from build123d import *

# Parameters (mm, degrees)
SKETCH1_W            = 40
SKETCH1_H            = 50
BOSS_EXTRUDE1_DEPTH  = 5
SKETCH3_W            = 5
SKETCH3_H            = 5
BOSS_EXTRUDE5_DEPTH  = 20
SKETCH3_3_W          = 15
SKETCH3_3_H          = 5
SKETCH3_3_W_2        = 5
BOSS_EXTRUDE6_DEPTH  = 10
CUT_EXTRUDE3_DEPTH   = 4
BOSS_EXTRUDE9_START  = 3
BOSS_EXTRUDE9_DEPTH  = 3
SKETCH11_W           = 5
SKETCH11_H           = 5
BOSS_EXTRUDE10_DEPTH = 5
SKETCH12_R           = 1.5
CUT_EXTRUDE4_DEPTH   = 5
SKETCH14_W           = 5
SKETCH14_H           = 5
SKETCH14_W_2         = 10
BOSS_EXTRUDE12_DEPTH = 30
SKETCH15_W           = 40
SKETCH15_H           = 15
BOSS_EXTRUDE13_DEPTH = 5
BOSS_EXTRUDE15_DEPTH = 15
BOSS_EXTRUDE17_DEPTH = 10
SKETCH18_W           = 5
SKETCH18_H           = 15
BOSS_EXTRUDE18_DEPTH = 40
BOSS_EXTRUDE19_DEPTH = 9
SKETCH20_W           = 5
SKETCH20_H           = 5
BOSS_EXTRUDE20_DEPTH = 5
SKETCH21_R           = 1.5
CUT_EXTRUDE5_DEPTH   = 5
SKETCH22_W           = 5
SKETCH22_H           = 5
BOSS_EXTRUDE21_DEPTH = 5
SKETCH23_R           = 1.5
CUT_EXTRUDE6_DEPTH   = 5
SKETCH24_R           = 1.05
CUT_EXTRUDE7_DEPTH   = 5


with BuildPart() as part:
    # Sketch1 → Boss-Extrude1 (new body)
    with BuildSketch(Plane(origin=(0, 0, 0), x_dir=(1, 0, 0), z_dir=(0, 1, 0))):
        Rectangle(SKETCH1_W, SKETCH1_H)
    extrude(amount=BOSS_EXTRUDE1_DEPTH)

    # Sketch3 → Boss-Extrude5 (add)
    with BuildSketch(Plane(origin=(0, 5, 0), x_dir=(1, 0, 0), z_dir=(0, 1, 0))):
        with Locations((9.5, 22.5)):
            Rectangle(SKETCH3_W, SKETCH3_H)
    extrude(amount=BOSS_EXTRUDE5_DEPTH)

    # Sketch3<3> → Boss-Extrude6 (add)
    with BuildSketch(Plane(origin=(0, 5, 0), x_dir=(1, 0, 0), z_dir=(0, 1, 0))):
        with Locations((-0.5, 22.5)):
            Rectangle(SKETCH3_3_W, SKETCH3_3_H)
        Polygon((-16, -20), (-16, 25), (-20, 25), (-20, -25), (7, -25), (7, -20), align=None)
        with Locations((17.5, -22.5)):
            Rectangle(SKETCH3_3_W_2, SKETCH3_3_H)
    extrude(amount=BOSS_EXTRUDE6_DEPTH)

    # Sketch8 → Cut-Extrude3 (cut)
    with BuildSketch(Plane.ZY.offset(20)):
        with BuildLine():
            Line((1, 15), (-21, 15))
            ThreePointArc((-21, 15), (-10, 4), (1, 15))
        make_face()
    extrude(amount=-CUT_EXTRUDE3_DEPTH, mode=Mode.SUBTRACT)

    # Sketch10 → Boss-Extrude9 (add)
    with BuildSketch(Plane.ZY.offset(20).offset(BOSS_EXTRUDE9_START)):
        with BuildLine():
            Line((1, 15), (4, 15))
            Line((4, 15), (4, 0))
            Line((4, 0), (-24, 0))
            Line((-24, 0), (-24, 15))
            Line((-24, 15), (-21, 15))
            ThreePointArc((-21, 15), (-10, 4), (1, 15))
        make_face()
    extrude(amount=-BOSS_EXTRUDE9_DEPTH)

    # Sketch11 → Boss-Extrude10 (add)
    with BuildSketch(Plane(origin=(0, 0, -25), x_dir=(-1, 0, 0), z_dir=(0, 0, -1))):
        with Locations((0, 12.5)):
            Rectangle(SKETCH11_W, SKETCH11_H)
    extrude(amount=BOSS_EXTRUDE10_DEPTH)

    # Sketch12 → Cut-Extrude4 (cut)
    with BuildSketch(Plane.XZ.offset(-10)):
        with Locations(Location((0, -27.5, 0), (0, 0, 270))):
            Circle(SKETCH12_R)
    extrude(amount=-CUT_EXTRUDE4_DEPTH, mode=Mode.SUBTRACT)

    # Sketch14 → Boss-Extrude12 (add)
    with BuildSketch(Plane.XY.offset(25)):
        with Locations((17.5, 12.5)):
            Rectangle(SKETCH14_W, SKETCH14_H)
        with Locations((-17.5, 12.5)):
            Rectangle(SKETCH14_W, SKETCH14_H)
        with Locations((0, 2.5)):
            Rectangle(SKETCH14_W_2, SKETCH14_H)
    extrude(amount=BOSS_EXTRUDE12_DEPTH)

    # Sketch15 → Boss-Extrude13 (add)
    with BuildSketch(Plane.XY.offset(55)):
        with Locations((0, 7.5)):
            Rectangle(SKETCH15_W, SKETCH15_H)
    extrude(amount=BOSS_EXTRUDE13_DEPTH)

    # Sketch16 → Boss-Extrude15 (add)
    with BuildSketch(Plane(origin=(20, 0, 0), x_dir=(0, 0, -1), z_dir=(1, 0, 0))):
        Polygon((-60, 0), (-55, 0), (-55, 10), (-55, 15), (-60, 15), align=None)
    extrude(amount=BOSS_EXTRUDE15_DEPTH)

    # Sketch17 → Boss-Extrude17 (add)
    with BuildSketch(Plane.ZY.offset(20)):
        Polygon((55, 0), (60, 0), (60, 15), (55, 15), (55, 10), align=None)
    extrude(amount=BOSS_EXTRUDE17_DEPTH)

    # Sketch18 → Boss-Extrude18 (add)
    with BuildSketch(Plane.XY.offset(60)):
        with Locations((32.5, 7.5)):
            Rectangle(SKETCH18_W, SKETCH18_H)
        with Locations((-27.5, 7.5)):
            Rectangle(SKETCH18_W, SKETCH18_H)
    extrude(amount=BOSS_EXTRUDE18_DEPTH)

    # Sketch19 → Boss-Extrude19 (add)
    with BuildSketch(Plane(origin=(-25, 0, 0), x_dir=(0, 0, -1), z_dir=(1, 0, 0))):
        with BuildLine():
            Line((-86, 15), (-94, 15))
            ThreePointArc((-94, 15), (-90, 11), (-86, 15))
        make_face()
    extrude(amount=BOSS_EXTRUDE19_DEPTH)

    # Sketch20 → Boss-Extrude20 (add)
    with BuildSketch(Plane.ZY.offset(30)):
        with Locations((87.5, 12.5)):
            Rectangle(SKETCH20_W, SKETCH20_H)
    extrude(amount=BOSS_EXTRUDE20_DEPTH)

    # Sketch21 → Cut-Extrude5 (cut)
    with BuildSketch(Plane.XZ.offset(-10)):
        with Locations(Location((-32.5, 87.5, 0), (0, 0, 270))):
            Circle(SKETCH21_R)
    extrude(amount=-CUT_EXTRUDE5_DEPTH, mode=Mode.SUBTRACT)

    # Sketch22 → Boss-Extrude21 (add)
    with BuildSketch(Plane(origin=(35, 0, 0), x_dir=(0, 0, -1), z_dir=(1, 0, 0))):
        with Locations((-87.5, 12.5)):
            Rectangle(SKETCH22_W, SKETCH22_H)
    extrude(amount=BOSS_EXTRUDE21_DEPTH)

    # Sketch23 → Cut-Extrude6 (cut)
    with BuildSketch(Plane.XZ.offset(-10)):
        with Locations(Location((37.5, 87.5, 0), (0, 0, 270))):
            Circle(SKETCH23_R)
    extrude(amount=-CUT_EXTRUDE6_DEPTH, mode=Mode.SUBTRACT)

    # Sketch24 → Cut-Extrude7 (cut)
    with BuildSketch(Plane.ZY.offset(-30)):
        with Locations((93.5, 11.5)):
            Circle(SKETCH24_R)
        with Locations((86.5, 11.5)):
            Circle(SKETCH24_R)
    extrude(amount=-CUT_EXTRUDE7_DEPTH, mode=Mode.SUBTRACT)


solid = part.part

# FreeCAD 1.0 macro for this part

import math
import FreeCAD as App
import Part
import Sketcher

doc = App.newDocument("Part")
body = doc.addObject("PartDesign::Body", "Body")

sketch1 = doc.addObject("Sketcher::SketchObject", "Sketch")
body.addObject(sketch1)
sketch1.AttachmentSupport = (doc.XZ_Plane, [""])
sketch1.MapMode = "FlatFace"
sketch1.addGeometry(Part.LineSegment(App.Vector(-20, -25, 0), App.Vector(-20, 25, 0)), False)
sketch1.addGeometry(Part.LineSegment(App.Vector(-20, 25, 0), App.Vector(20, 25, 0)), False)
sketch1.addGeometry(Part.LineSegment(App.Vector(20, 25, 0), App.Vector(20, -25, 0)), False)
sketch1.addGeometry(Part.LineSegment(App.Vector(20, -25, 0), App.Vector(-20, -25, 0)), False)
sketch1.addConstraint(Sketcher.Constraint("Coincident", 0, 2, 1, 1))
sketch1.addConstraint(Sketcher.Constraint("Coincident", 1, 2, 2, 1))
sketch1.addConstraint(Sketcher.Constraint("Coincident", 2, 2, 3, 1))
sketch1.addConstraint(Sketcher.Constraint("Coincident", 3, 2, 0, 1))
sketch1.addConstraint(Sketcher.Constraint("Vertical", 0))
sketch1.addConstraint(Sketcher.Constraint("Horizontal", 1))
sketch1.addConstraint(Sketcher.Constraint("Vertical", 2))
sketch1.addConstraint(Sketcher.Constraint("Horizontal", 3))
sketch1.addConstraint(Sketcher.Constraint("Symmetric", 0, 2, 2, 2, -1, 1))
sketch1.addConstraint(Sketcher.Constraint("DistanceX", 1, 1, 1, 2, 40.0))
sketch1.addConstraint(Sketcher.Constraint("DistanceY", 0, 1, 0, 2, 50.0))
pad1 = doc.addObject("PartDesign::Pad", "Pad")
body.addObject(pad1)
pad1.Profile = sketch1
pad1.Length = 5
pad1.Reversed = True

sketch2 = doc.addObject("Sketcher::SketchObject", "Sketch001")
body.addObject(sketch2)
sketch2.AttachmentSupport = (doc.XZ_Plane, [""])
sketch2.MapMode = "FlatFace"
sketch2.AttachmentOffset = App.Placement(App.Vector(0, 0, -5), App.Rotation())
sketch2.addGeometry(Part.LineSegment(App.Vector(7, -25, 0), App.Vector(7, -20, 0)), False)
sketch2.addGeometry(Part.LineSegment(App.Vector(7, -20, 0), App.Vector(12, -20, 0)), False)
sketch2.addGeometry(Part.LineSegment(App.Vector(12, -20, 0), App.Vector(12, -25, 0)), False)
sketch2.addGeometry(Part.LineSegment(App.Vector(12, -25, 0), App.Vector(7, -25, 0)), False)
sketch2.addConstraint(Sketcher.Constraint("Coincident", 0, 2, 1, 1))
sketch2.addConstraint(Sketcher.Constraint("Coincident", 1, 2, 2, 1))
sketch2.addConstraint(Sketcher.Constraint("Coincident", 2, 2, 3, 1))
sketch2.addConstraint(Sketcher.Constraint("Coincident", 3, 2, 0, 1))
sketch2.addConstraint(Sketcher.Constraint("Vertical", 0))
sketch2.addConstraint(Sketcher.Constraint("Horizontal", 1))
sketch2.addConstraint(Sketcher.Constraint("Vertical", 2))
sketch2.addConstraint(Sketcher.Constraint("Horizontal", 3))
sketch2.addConstraint(Sketcher.Constraint("Equal", 3, 0))
sketch2.addConstraint(Sketcher.Constraint("DistanceX", 1, 1, 1, 2, 5.0))
sketch2.addConstraint(Sketcher.Constraint("DistanceX", -1, 1, 0, 2, 7.0))
sketch2.addConstraint(Sketcher.Constraint("DistanceY", 0, 2, -1, 1, 20.0))
pad2 = doc.addObject("PartDesign::Pad", "Pad001")
body.addObject(pad2)
pad2.Profile = sketch2
pad2.Length = 20
pad2.Reversed = True

sketch3 = doc.addObject("Sketcher::SketchObject", "Sketch002")
body.addObject(sketch3)
sketch3.AttachmentSupport = (doc.XZ_Plane, [""])
sketch3.MapMode = "FlatFace"
sketch3.AttachmentOffset = App.Placement(App.Vector(0, 0, -5), App.Rotation())
sketch3.addGeometry(Part.LineSegment(App.Vector(-8, -25, 0), App.Vector(-8, -20, 0)), False)
sketch3.addGeometry(Part.LineSegment(App.Vector(-8, -20, 0), App.Vector(7, -20, 0)), False)
sketch3.addGeometry(Part.LineSegment(App.Vector(7, -20, 0), App.Vector(7, -25, 0)), False)
sketch3.addGeometry(Part.LineSegment(App.Vector(7, -25, 0), App.Vector(-8, -25, 0)), False)
sketch3.addGeometry(Part.LineSegment(App.Vector(-16, 20, 0), App.Vector(-16, -25, 0)), False)
sketch3.addGeometry(Part.LineSegment(App.Vector(-16, -25, 0), App.Vector(-20, -25, 0)), False)
sketch3.addGeometry(Part.LineSegment(App.Vector(-20, -25, 0), App.Vector(-20, 25, 0)), False)
sketch3.addGeometry(Part.LineSegment(App.Vector(-20, 25, 0), App.Vector(7, 25, 0)), False)
sketch3.addGeometry(Part.LineSegment(App.Vector(7, 25, 0), App.Vector(7, 20, 0)), False)
sketch3.addGeometry(Part.LineSegment(App.Vector(7, 20, 0), App.Vector(-16, 20, 0)), False)
sketch3.addGeometry(Part.LineSegment(App.Vector(15, 20, 0), App.Vector(15, 25, 0)), False)
sketch3.addGeometry(Part.LineSegment(App.Vector(15, 25, 0), App.Vector(20, 25, 0)), False)
sketch3.addGeometry(Part.LineSegment(App.Vector(20, 25, 0), App.Vector(20, 20, 0)), False)
sketch3.addGeometry(Part.LineSegment(App.Vector(20, 20, 0), App.Vector(15, 20, 0)), False)
sketch3.addConstraint(Sketcher.Constraint("Coincident", 0, 2, 1, 1))
sketch3.addConstraint(Sketcher.Constraint("Coincident", 1, 2, 2, 1))
sketch3.addConstraint(Sketcher.Constraint("Coincident", 2, 2, 3, 1))
sketch3.addConstraint(Sketcher.Constraint("Coincident", 3, 2, 0, 1))
sketch3.addConstraint(Sketcher.Constraint("Coincident", 4, 2, 5, 1))
sketch3.addConstraint(Sketcher.Constraint("Coincident", 5, 2, 6, 1))
sketch3.addConstraint(Sketcher.Constraint("Coincident", 6, 2, 7, 1))
sketch3.addConstraint(Sketcher.Constraint("Coincident", 7, 2, 8, 1))
sketch3.addConstraint(Sketcher.Constraint("Coincident", 8, 2, 9, 1))
sketch3.addConstraint(Sketcher.Constraint("Coincident", 9, 2, 4, 1))
sketch3.addConstraint(Sketcher.Constraint("Coincident", 10, 2, 11, 1))
sketch3.addConstraint(Sketcher.Constraint("Coincident", 11, 2, 12, 1))
sketch3.addConstraint(Sketcher.Constraint("Coincident", 12, 2, 13, 1))
sketch3.addConstraint(Sketcher.Constraint("Coincident", 13, 2, 10, 1))
sketch3.addConstraint(Sketcher.Constraint("Vertical", 0))
sketch3.addConstraint(Sketcher.Constraint("Horizontal", 1))
sketch3.addConstraint(Sketcher.Constraint("Vertical", 2))
sketch3.addConstraint(Sketcher.Constraint("Horizontal", 3))
sketch3.addConstraint(Sketcher.Constraint("Vertical", 4))
sketch3.addConstraint(Sketcher.Constraint("Horizontal", 5))
sketch3.addConstraint(Sketcher.Constraint("Vertical", 6))
sketch3.addConstraint(Sketcher.Constraint("Horizontal", 7))
sketch3.addConstraint(Sketcher.Constraint("Vertical", 8))
sketch3.addConstraint(Sketcher.Constraint("Horizontal", 9))
sketch3.addConstraint(Sketcher.Constraint("Vertical", 10))
sketch3.addConstraint(Sketcher.Constraint("Horizontal", 11))
sketch3.addConstraint(Sketcher.Constraint("Vertical", 12))
sketch3.addConstraint(Sketcher.Constraint("Horizontal", 13))
sketch3.addConstraint(Sketcher.Constraint("Symmetric", 5, 2, 11, 2, -1, 1))
sketch3.addConstraint(Sketcher.Constraint("Symmetric", 2, 2, 7, 2, -1))
sketch3.addConstraint(Sketcher.Constraint("Horizontal", 3, 2, 4, 2))
sketch3.addConstraint(Sketcher.Constraint("Horizontal", 9, 2, 12, 2))
sketch3.addConstraint(Sketcher.Constraint("Equal", 13, 0))
sketch3.addConstraint(Sketcher.Constraint("Equal", 2, 8))
sketch3.addConstraint(Sketcher.Constraint("DistanceX", 1, 1, 1, 2, 15.0))
sketch3.addConstraint(Sketcher.Constraint("DistanceX", 5, 2, 5, 1, 4.0))
sketch3.addConstraint(Sketcher.Constraint("DistanceX", 7, 1, 7, 2, 27.0))
sketch3.addConstraint(Sketcher.Constraint("DistanceX", 11, 1, 11, 2, 5.0))
sketch3.addConstraint(Sketcher.Constraint("DistanceY", 4, 2, 4, 1, 45.0))
sketch3.addConstraint(Sketcher.Constraint("DistanceX", 0, 2, -1, 1, 8.0))
pad3 = doc.addObject("PartDesign::Pad", "Pad002")
body.addObject(pad3)
pad3.Profile = sketch3
pad3.Length = 10
pad3.Reversed = True

sketch4 = doc.addObject("Sketcher::SketchObject", "Sketch003")
body.addObject(sketch4)
sketch4.AttachmentSupport = (doc.YZ_Plane, [""])
sketch4.MapMode = "FlatFace"
sketch4.AttachmentOffset = App.Placement(App.Vector(0, 0, -20), App.Rotation())
sketch4.addGeometry(Part.LineSegment(App.Vector(15, 1, 0), App.Vector(15, -21, 0)), False)
sketch4.addGeometry(Part.ArcOfCircle(Part.Circle(App.Vector(15, -10, 0), App.Vector(0, 0, 1), 11), math.radians(90), math.radians(270)), False)
sketch4.addConstraint(Sketcher.Constraint("Coincident", 0, 1, 1, 1))
sketch4.addConstraint(Sketcher.Constraint("Coincident", 1, 2, 0, 2))
sketch4.addConstraint(Sketcher.Constraint("Vertical", 0))
sketch4.addConstraint(Sketcher.Constraint("Vertical", 1, 3, 0, 1))
sketch4.addConstraint(Sketcher.Constraint("Radius", 1, 11.0))
sketch4.addConstraint(Sketcher.Constraint("DistanceX", -1, 1, 1, 3, 15.0))
sketch4.addConstraint(Sketcher.Constraint("DistanceY", 1, 3, -1, 1, 10.0))
pocket1 = doc.addObject("PartDesign::Pocket", "Pocket")
body.addObject(pocket1)
pocket1.Profile = sketch4
pocket1.Length = 4
pocket1.Reversed = True

sketch5 = doc.addObject("Sketcher::SketchObject", "Sketch004")
body.addObject(sketch5)
sketch5.AttachmentSupport = (doc.YZ_Plane, [""])
sketch5.MapMode = "FlatFace"
sketch5.AttachmentOffset = App.Placement(App.Vector(0, 0, -23), App.Rotation())
sketch5.addGeometry(Part.LineSegment(App.Vector(15, 4, 0), App.Vector(15, 1, 0)), False)
sketch5.addGeometry(Part.ArcOfCircle(Part.Circle(App.Vector(15, -10, 0), App.Vector(0, 0, 1), 11), math.radians(90), math.radians(270)), False)
sketch5.addGeometry(Part.LineSegment(App.Vector(15, -21, 0), App.Vector(15, -24, 0)), False)
sketch5.addGeometry(Part.LineSegment(App.Vector(15, -24, 0), App.Vector(0, -24, 0)), False)
sketch5.addGeometry(Part.LineSegment(App.Vector(0, -24, 0), App.Vector(0, 4, 0)), False)
sketch5.addGeometry(Part.LineSegment(App.Vector(0, 4, 0), App.Vector(15, 4, 0)), False)
sketch5.addConstraint(Sketcher.Constraint("Coincident", 0, 2, 1, 1))
sketch5.addConstraint(Sketcher.Constraint("Coincident", 1, 2, 2, 1))
sketch5.addConstraint(Sketcher.Constraint("Coincident", 2, 2, 3, 1))
sketch5.addConstraint(Sketcher.Constraint("Coincident", 3, 2, 4, 1))
sketch5.addConstraint(Sketcher.Constraint("Coincident", 4, 2, 5, 1))
sketch5.addConstraint(Sketcher.Constraint("Coincident", 5, 2, 0, 1))
sketch5.addConstraint(Sketcher.Constraint("Vertical", 0))
sketch5.addConstraint(Sketcher.Constraint("Vertical", 2))
sketch5.addConstraint(Sketcher.Constraint("Horizontal", 3))
sketch5.addConstraint(Sketcher.Constraint("Vertical", 4))
sketch5.addConstraint(Sketcher.Constraint("Horizontal", 5))
sketch5.addConstraint(Sketcher.Constraint("PointOnObject", 3, 2, -2))
sketch5.addConstraint(Sketcher.Constraint("Vertical", 1, 3, 0, 2))
sketch5.addConstraint(Sketcher.Constraint("Vertical", 0, 2, 1, 2))
sketch5.addConstraint(Sketcher.Constraint("Equal", 0, 2))
sketch5.addConstraint(Sketcher.Constraint("Radius", 1, 11.0))
sketch5.addConstraint(Sketcher.Constraint("DistanceX", 3, 2, 3, 1, 15.0))
sketch5.addConstraint(Sketcher.Constraint("DistanceY", 0, 2, 0, 1, 3.0))
sketch5.addConstraint(Sketcher.Constraint("DistanceY", 1, 3, -1, 1, 10.0))
pad4 = doc.addObject("PartDesign::Pad", "Pad003")
body.addObject(pad4)
pad4.Profile = sketch5
pad4.Length = 3

sketch6 = doc.addObject("Sketcher::SketchObject", "Sketch005")
body.addObject(sketch6)
sketch6.AttachmentSupport = (doc.XY_Plane, [""])
sketch6.MapMode = "FlatFace"
sketch6.AttachmentOffset = App.Placement(App.Vector(0, 0, -25), App.Rotation())
sketch6.addGeometry(Part.LineSegment(App.Vector(2.5, 15, 0), App.Vector(2.5, 10, 0)), False)
sketch6.addGeometry(Part.LineSegment(App.Vector(2.5, 10, 0), App.Vector(-2.5, 10, 0)), False)
sketch6.addGeometry(Part.LineSegment(App.Vector(-2.5, 10, 0), App.Vector(-2.5, 15, 0)), False)
sketch6.addGeometry(Part.LineSegment(App.Vector(-2.5, 15, 0), App.Vector(2.5, 15, 0)), False)
sketch6.addConstraint(Sketcher.Constraint("Coincident", 0, 2, 1, 1))
sketch6.addConstraint(Sketcher.Constraint("Coincident", 1, 2, 2, 1))
sketch6.addConstraint(Sketcher.Constraint("Coincident", 2, 2, 3, 1))
sketch6.addConstraint(Sketcher.Constraint("Coincident", 3, 2, 0, 1))
sketch6.addConstraint(Sketcher.Constraint("Vertical", 0))
sketch6.addConstraint(Sketcher.Constraint("Horizontal", 1))
sketch6.addConstraint(Sketcher.Constraint("Vertical", 2))
sketch6.addConstraint(Sketcher.Constraint("Horizontal", 3))
sketch6.addConstraint(Sketcher.Constraint("Equal", 3, 0))
sketch6.addConstraint(Sketcher.Constraint("DistanceX", 1, 2, 1, 1, 5.0))
sketch6.addConstraint(Sketcher.Constraint("DistanceY", -1, 1, 0, 2, 10.0))
sketch6.addConstraint(Sketcher.Constraint("DistanceX", -1, 1, 0, 2, 2.5))
pad5 = doc.addObject("PartDesign::Pad", "Pad004")
body.addObject(pad5)
pad5.Profile = sketch6
pad5.Length = 5
pad5.Reversed = True

sketch7 = doc.addObject("Sketcher::SketchObject", "Sketch006")
body.addObject(sketch7)
sketch7.AttachmentSupport = (doc.XZ_Plane, [""])
sketch7.MapMode = "FlatFace"
sketch7.AttachmentOffset = App.Placement(App.Vector(0, 0, -10), App.Rotation())
sketch7.addGeometry(Part.Circle(App.Vector(0, -27.5, 0), App.Vector(0, 0, 1), 1.5), False)
sketch7.addConstraint(Sketcher.Constraint("PointOnObject", 0, 3, -2))
sketch7.addConstraint(Sketcher.Constraint("Diameter", 0, 3.0))
sketch7.addConstraint(Sketcher.Constraint("DistanceY", 0, 3, -1, 1, 27.5))
pocket2 = doc.addObject("PartDesign::Pocket", "Pocket001")
body.addObject(pocket2)
pocket2.Profile = sketch7
pocket2.Length = 5

sketch8 = doc.addObject("Sketcher::SketchObject", "Sketch007")
body.addObject(sketch8)
sketch8.AttachmentSupport = (doc.XY_Plane, [""])
sketch8.MapMode = "FlatFace"
sketch8.AttachmentOffset = App.Placement(App.Vector(0, 0, 25), App.Rotation())
sketch8.addGeometry(Part.LineSegment(App.Vector(15, 15, 0), App.Vector(15, 10, 0)), False)
sketch8.addGeometry(Part.LineSegment(App.Vector(15, 10, 0), App.Vector(20, 10, 0)), False)
sketch8.addGeometry(Part.LineSegment(App.Vector(20, 10, 0), App.Vector(20, 15, 0)), False)
sketch8.addGeometry(Part.LineSegment(App.Vector(20, 15, 0), App.Vector(15, 15, 0)), False)
sketch8.addGeometry(Part.LineSegment(App.Vector(-20, 15, 0), App.Vector(-20, 10, 0)), False)
sketch8.addGeometry(Part.LineSegment(App.Vector(-20, 10, 0), App.Vector(-15, 10, 0)), False)
sketch8.addGeometry(Part.LineSegment(App.Vector(-15, 10, 0), App.Vector(-15, 15, 0)), False)
sketch8.addGeometry(Part.LineSegment(App.Vector(-15, 15, 0), App.Vector(-20, 15, 0)), False)
sketch8.addGeometry(Part.LineSegment(App.Vector(-5, 5, 0), App.Vector(-5, 0, 0)), False)
sketch8.addGeometry(Part.LineSegment(App.Vector(-5, 0, 0), App.Vector(5, 0, 0)), False)
sketch8.addGeometry(Part.LineSegment(App.Vector(5, 0, 0), App.Vector(5, 5, 0)), False)
sketch8.addGeometry(Part.LineSegment(App.Vector(5, 5, 0), App.Vector(-5, 5, 0)), False)
sketch8.addConstraint(Sketcher.Constraint("Coincident", 0, 2, 1, 1))
sketch8.addConstraint(Sketcher.Constraint("Coincident", 1, 2, 2, 1))
sketch8.addConstraint(Sketcher.Constraint("Coincident", 2, 2, 3, 1))
sketch8.addConstraint(Sketcher.Constraint("Coincident", 3, 2, 0, 1))
sketch8.addConstraint(Sketcher.Constraint("Coincident", 4, 2, 5, 1))
sketch8.addConstraint(Sketcher.Constraint("Coincident", 5, 2, 6, 1))
sketch8.addConstraint(Sketcher.Constraint("Coincident", 6, 2, 7, 1))
sketch8.addConstraint(Sketcher.Constraint("Coincident", 7, 2, 4, 1))
sketch8.addConstraint(Sketcher.Constraint("Coincident", 8, 2, 9, 1))
sketch8.addConstraint(Sketcher.Constraint("Coincident", 9, 2, 10, 1))
sketch8.addConstraint(Sketcher.Constraint("Coincident", 10, 2, 11, 1))
sketch8.addConstraint(Sketcher.Constraint("Coincident", 11, 2, 8, 1))
sketch8.addConstraint(Sketcher.Constraint("Vertical", 0))
sketch8.addConstraint(Sketcher.Constraint("Horizontal", 1))
sketch8.addConstraint(Sketcher.Constraint("Vertical", 2))
sketch8.addConstraint(Sketcher.Constraint("Horizontal", 3))
sketch8.addConstraint(Sketcher.Constraint("Vertical", 4))
sketch8.addConstraint(Sketcher.Constraint("Horizontal", 5))
sketch8.addConstraint(Sketcher.Constraint("Vertical", 6))
sketch8.addConstraint(Sketcher.Constraint("Horizontal", 7))
sketch8.addConstraint(Sketcher.Constraint("Vertical", 8))
sketch8.addConstraint(Sketcher.Constraint("Horizontal", 9))
sketch8.addConstraint(Sketcher.Constraint("Vertical", 10))
sketch8.addConstraint(Sketcher.Constraint("Horizontal", 11))
sketch8.addConstraint(Sketcher.Constraint("Symmetric", 8, 2, 9, 2, -1, 1))
sketch8.addConstraint(Sketcher.Constraint("Symmetric", 1, 2, 4, 2, -2))
sketch8.addConstraint(Sketcher.Constraint("Symmetric", 3, 2, 6, 2, -2))
sketch8.addConstraint(Sketcher.Constraint("Equal", 7, 0))
sketch8.addConstraint(Sketcher.Constraint("Equal", 6, 8))
sketch8.addConstraint(Sketcher.Constraint("DistanceX", 1, 1, 1, 2, 5.0))
sketch8.addConstraint(Sketcher.Constraint("DistanceX", 9, 1, 9, 2, 10.0))
sketch8.addConstraint(Sketcher.Constraint("DistanceX", -1, 1, 0, 2, 15.0))
sketch8.addConstraint(Sketcher.Constraint("DistanceY", -1, 1, 0, 2, 10.0))
pad6 = doc.addObject("PartDesign::Pad", "Pad005")
body.addObject(pad6)
pad6.Profile = sketch8
pad6.Length = 30

sketch9 = doc.addObject("Sketcher::SketchObject", "Sketch008")
body.addObject(sketch9)
sketch9.AttachmentSupport = (doc.XY_Plane, [""])
sketch9.MapMode = "FlatFace"
sketch9.AttachmentOffset = App.Placement(App.Vector(0, 0, 55), App.Rotation())
sketch9.addGeometry(Part.LineSegment(App.Vector(-20, 15, 0), App.Vector(-20, 0, 0)), False)
sketch9.addGeometry(Part.LineSegment(App.Vector(-20, 0, 0), App.Vector(20, 0, 0)), False)
sketch9.addGeometry(Part.LineSegment(App.Vector(20, 0, 0), App.Vector(20, 15, 0)), False)
sketch9.addGeometry(Part.LineSegment(App.Vector(20, 15, 0), App.Vector(-20, 15, 0)), False)
sketch9.addConstraint(Sketcher.Constraint("Coincident", 0, 2, 1, 1))
sketch9.addConstraint(Sketcher.Constraint("Coincident", 1, 2, 2, 1))
sketch9.addConstraint(Sketcher.Constraint("Coincident", 2, 2, 3, 1))
sketch9.addConstraint(Sketcher.Constraint("Coincident", 3, 2, 0, 1))
sketch9.addConstraint(Sketcher.Constraint("Vertical", 0))
sketch9.addConstraint(Sketcher.Constraint("Horizontal", 1))
sketch9.addConstraint(Sketcher.Constraint("Vertical", 2))
sketch9.addConstraint(Sketcher.Constraint("Horizontal", 3))
sketch9.addConstraint(Sketcher.Constraint("Symmetric", 0, 2, 1, 2, -1, 1))
sketch9.addConstraint(Sketcher.Constraint("DistanceX", 1, 1, 1, 2, 40.0))
sketch9.addConstraint(Sketcher.Constraint("DistanceY", 0, 2, 0, 1, 15.0))
pad7 = doc.addObject("PartDesign::Pad", "Pad006")
body.addObject(pad7)
pad7.Profile = sketch9
pad7.Length = 5

sketch10 = doc.addObject("Sketcher::SketchObject", "Sketch009")
body.addObject(sketch10)
sketch10.AttachmentSupport = (doc.YZ_Plane, [""])
sketch10.MapMode = "FlatFace"
sketch10.AttachmentOffset = App.Placement(App.Vector(0, 0, 20), App.Rotation())
sketch10.addGeometry(Part.LineSegment(App.Vector(0, 60, 0), App.Vector(0, 55, 0)), False)
sketch10.addGeometry(Part.LineSegment(App.Vector(0, 55, 0), App.Vector(15, 55, 0)), False)
sketch10.addGeometry(Part.LineSegment(App.Vector(15, 55, 0), App.Vector(15, 60, 0)), False)
sketch10.addGeometry(Part.LineSegment(App.Vector(15, 60, 0), App.Vector(0, 60, 0)), False)
sketch10.addConstraint(Sketcher.Constraint("Coincident", 0, 2, 1, 1))
sketch10.addConstraint(Sketcher.Constraint("Coincident", 1, 2, 2, 1))
sketch10.addConstraint(Sketcher.Constraint("Coincident", 2, 2, 3, 1))
sketch10.addConstraint(Sketcher.Constraint("Coincident", 3, 2, 0, 1))
sketch10.addConstraint(Sketcher.Constraint("Vertical", 0))
sketch10.addConstraint(Sketcher.Constraint("Horizontal", 1))
sketch10.addConstraint(Sketcher.Constraint("Vertical", 2))
sketch10.addConstraint(Sketcher.Constraint("Horizontal", 3))
sketch10.addConstraint(Sketcher.Constraint("PointOnObject", 0, 2, -2))
sketch10.addConstraint(Sketcher.Constraint("DistanceX", 1, 1, 1, 2, 15.0))
sketch10.addConstraint(Sketcher.Constraint("DistanceY", 0, 2, 0, 1, 5.0))
sketch10.addConstraint(Sketcher.Constraint("DistanceY", -1, 1, 0, 2, 55.0))
pad8 = doc.addObject("PartDesign::Pad", "Pad007")
body.addObject(pad8)
pad8.Profile = sketch10
pad8.Length = 15

sketch11 = doc.addObject("Sketcher::SketchObject", "Sketch010")
body.addObject(sketch11)
sketch11.AttachmentSupport = (doc.YZ_Plane, [""])
sketch11.MapMode = "FlatFace"
sketch11.AttachmentOffset = App.Placement(App.Vector(0, 0, -20), App.Rotation())
sketch11.addGeometry(Part.LineSegment(App.Vector(0, 55, 0), App.Vector(0, 60, 0)), False)
sketch11.addGeometry(Part.LineSegment(App.Vector(0, 60, 0), App.Vector(15, 60, 0)), False)
sketch11.addGeometry(Part.LineSegment(App.Vector(15, 60, 0), App.Vector(15, 55, 0)), False)
sketch11.addGeometry(Part.LineSegment(App.Vector(15, 55, 0), App.Vector(0, 55, 0)), False)
sketch11.addConstraint(Sketcher.Constraint("Coincident", 0, 2, 1, 1))
sketch11.addConstraint(Sketcher.Constraint("Coincident", 1, 2, 2, 1))
sketch11.addConstraint(Sketcher.Constraint("Coincident", 2, 2, 3, 1))
sketch11.addConstraint(Sketcher.Constraint("Coincident", 3, 2, 0, 1))
sketch11.addConstraint(Sketcher.Constraint("Vertical", 0))
sketch11.addConstraint(Sketcher.Constraint("Horizontal", 1))
sketch11.addConstraint(Sketcher.Constraint("Vertical", 2))
sketch11.addConstraint(Sketcher.Constraint("Horizontal", 3))
sketch11.addConstraint(Sketcher.Constraint("PointOnObject", 0, 2, -2))
sketch11.addConstraint(Sketcher.Constraint("DistanceX", 1, 1, 1, 2, 15.0))
sketch11.addConstraint(Sketcher.Constraint("DistanceY", 0, 1, 0, 2, 5.0))
sketch11.addConstraint(Sketcher.Constraint("DistanceY", -1, 1, 0, 2, 60.0))
pad9 = doc.addObject("PartDesign::Pad", "Pad008")
body.addObject(pad9)
pad9.Profile = sketch11
pad9.Length = 10
pad9.Reversed = True

sketch12 = doc.addObject("Sketcher::SketchObject", "Sketch011")
body.addObject(sketch12)
sketch12.AttachmentSupport = (doc.XY_Plane, [""])
sketch12.MapMode = "FlatFace"
sketch12.AttachmentOffset = App.Placement(App.Vector(0, 0, 60), App.Rotation())
sketch12.addGeometry(Part.LineSegment(App.Vector(30, 15, 0), App.Vector(30, 0, 0)), False)
sketch12.addGeometry(Part.LineSegment(App.Vector(30, 0, 0), App.Vector(35, 0, 0)), False)
sketch12.addGeometry(Part.LineSegment(App.Vector(35, 0, 0), App.Vector(35, 15, 0)), False)
sketch12.addGeometry(Part.LineSegment(App.Vector(35, 15, 0), App.Vector(30, 15, 0)), False)
sketch12.addGeometry(Part.LineSegment(App.Vector(-30, 15, 0), App.Vector(-30, 0, 0)), False)
sketch12.addGeometry(Part.LineSegment(App.Vector(-30, 0, 0), App.Vector(-25, 0, 0)), False)
sketch12.addGeometry(Part.LineSegment(App.Vector(-25, 0, 0), App.Vector(-25, 15, 0)), False)
sketch12.addGeometry(Part.LineSegment(App.Vector(-25, 15, 0), App.Vector(-30, 15, 0)), False)
sketch12.addConstraint(Sketcher.Constraint("Coincident", 0, 2, 1, 1))
sketch12.addConstraint(Sketcher.Constraint("Coincident", 1, 2, 2, 1))
sketch12.addConstraint(Sketcher.Constraint("Coincident", 2, 2, 3, 1))
sketch12.addConstraint(Sketcher.Constraint("Coincident", 3, 2, 0, 1))
sketch12.addConstraint(Sketcher.Constraint("Coincident", 4, 2, 5, 1))
sketch12.addConstraint(Sketcher.Constraint("Coincident", 5, 2, 6, 1))
sketch12.addConstraint(Sketcher.Constraint("Coincident", 6, 2, 7, 1))
sketch12.addConstraint(Sketcher.Constraint("Coincident", 7, 2, 4, 1))
sketch12.addConstraint(Sketcher.Constraint("Vertical", 0))
sketch12.addConstraint(Sketcher.Constraint("Horizontal", 1))
sketch12.addConstraint(Sketcher.Constraint("Vertical", 2))
sketch12.addConstraint(Sketcher.Constraint("Horizontal", 3))
sketch12.addConstraint(Sketcher.Constraint("Vertical", 4))
sketch12.addConstraint(Sketcher.Constraint("Horizontal", 5))
sketch12.addConstraint(Sketcher.Constraint("Vertical", 6))
sketch12.addConstraint(Sketcher.Constraint("Horizontal", 7))
sketch12.addConstraint(Sketcher.Constraint("Symmetric", 0, 2, 4, 2, -1, 1))
sketch12.addConstraint(Sketcher.Constraint("PointOnObject", 0, 2, -1))
sketch12.addConstraint(Sketcher.Constraint("Horizontal", 3, 2, 6, 2))
sketch12.addConstraint(Sketcher.Constraint("Equal", 3, 5))
sketch12.addConstraint(Sketcher.Constraint("DistanceX", 1, 1, 1, 2, 5.0))
sketch12.addConstraint(Sketcher.Constraint("DistanceY", 0, 2, 0, 1, 15.0))
sketch12.addConstraint(Sketcher.Constraint("DistanceX", -1, 1, 0, 2, 30.0))
pad10 = doc.addObject("PartDesign::Pad", "Pad009")
body.addObject(pad10)
pad10.Profile = sketch12
pad10.Length = 40

sketch13 = doc.addObject("Sketcher::SketchObject", "Sketch012")
body.addObject(sketch13)
sketch13.AttachmentSupport = (doc.YZ_Plane, [""])
sketch13.MapMode = "FlatFace"
sketch13.AttachmentOffset = App.Placement(App.Vector(0, 0, -25), App.Rotation())
sketch13.addGeometry(Part.LineSegment(App.Vector(15, 86, 0), App.Vector(15, 94, 0)), False)
sketch13.addGeometry(Part.ArcOfCircle(Part.Circle(App.Vector(15, 90, 0), App.Vector(0, 0, 1), 4), math.radians(90), math.radians(270)), False)
sketch13.addConstraint(Sketcher.Constraint("Coincident", 0, 1, 1, 2))
sketch13.addConstraint(Sketcher.Constraint("Coincident", 1, 1, 0, 2))
sketch13.addConstraint(Sketcher.Constraint("Vertical", 0))
sketch13.addConstraint(Sketcher.Constraint("Vertical", 1, 3, 0, 1))
sketch13.addConstraint(Sketcher.Constraint("Radius", 1, 4.0))
sketch13.addConstraint(Sketcher.Constraint("DistanceX", -1, 1, 1, 3, 15.0))
sketch13.addConstraint(Sketcher.Constraint("DistanceY", -1, 1, 1, 3, 90.0))
pad11 = doc.addObject("PartDesign::Pad", "Pad010")
body.addObject(pad11)
pad11.Profile = sketch13
pad11.Length = 9

sketch14 = doc.addObject("Sketcher::SketchObject", "Sketch013")
body.addObject(sketch14)
sketch14.AttachmentSupport = (doc.YZ_Plane, [""])
sketch14.MapMode = "FlatFace"
sketch14.AttachmentOffset = App.Placement(App.Vector(0, 0, -30), App.Rotation())
sketch14.addGeometry(Part.LineSegment(App.Vector(15, 85, 0), App.Vector(10, 85, 0)), False)
sketch14.addGeometry(Part.LineSegment(App.Vector(10, 85, 0), App.Vector(10, 90, 0)), False)
sketch14.addGeometry(Part.LineSegment(App.Vector(10, 90, 0), App.Vector(15, 90, 0)), False)
sketch14.addGeometry(Part.LineSegment(App.Vector(15, 90, 0), App.Vector(15, 85, 0)), False)
sketch14.addConstraint(Sketcher.Constraint("Coincident", 0, 2, 1, 1))
sketch14.addConstraint(Sketcher.Constraint("Coincident", 1, 2, 2, 1))
sketch14.addConstraint(Sketcher.Constraint("Coincident", 2, 2, 3, 1))
sketch14.addConstraint(Sketcher.Constraint("Coincident", 3, 2, 0, 1))
sketch14.addConstraint(Sketcher.Constraint("Horizontal", 0))
sketch14.addConstraint(Sketcher.Constraint("Vertical", 1))
sketch14.addConstraint(Sketcher.Constraint("Horizontal", 2))
sketch14.addConstraint(Sketcher.Constraint("Vertical", 3))
sketch14.addConstraint(Sketcher.Constraint("Equal", 2, 1))
sketch14.addConstraint(Sketcher.Constraint("DistanceX", 0, 2, 0, 1, 5.0))
sketch14.addConstraint(Sketcher.Constraint("DistanceX", -1, 1, 0, 2, 10.0))
sketch14.addConstraint(Sketcher.Constraint("DistanceY", -1, 1, 0, 2, 85.0))
pad12 = doc.addObject("PartDesign::Pad", "Pad011")
body.addObject(pad12)
pad12.Profile = sketch14
pad12.Length = 5
pad12.Reversed = True

sketch15 = doc.addObject("Sketcher::SketchObject", "Sketch014")
body.addObject(sketch15)
sketch15.AttachmentSupport = (doc.XZ_Plane, [""])
sketch15.MapMode = "FlatFace"
sketch15.AttachmentOffset = App.Placement(App.Vector(0, 0, -10), App.Rotation())
sketch15.addGeometry(Part.Circle(App.Vector(-32.5, 87.5, 0), App.Vector(0, 0, 1), 1.5), False)
sketch15.addConstraint(Sketcher.Constraint("Diameter", 0, 3.0))
sketch15.addConstraint(Sketcher.Constraint("DistanceX", 0, 3, -1, 1, 32.5))
sketch15.addConstraint(Sketcher.Constraint("DistanceY", -1, 1, 0, 3, 87.5))
pocket3 = doc.addObject("PartDesign::Pocket", "Pocket002")
body.addObject(pocket3)
pocket3.Profile = sketch15
pocket3.Length = 5

sketch16 = doc.addObject("Sketcher::SketchObject", "Sketch015")
body.addObject(sketch16)
sketch16.AttachmentSupport = (doc.YZ_Plane, [""])
sketch16.MapMode = "FlatFace"
sketch16.AttachmentOffset = App.Placement(App.Vector(0, 0, 35), App.Rotation())
sketch16.addGeometry(Part.LineSegment(App.Vector(15, 90, 0), App.Vector(10, 90, 0)), False)
sketch16.addGeometry(Part.LineSegment(App.Vector(10, 90, 0), App.Vector(10, 85, 0)), False)
sketch16.addGeometry(Part.LineSegment(App.Vector(10, 85, 0), App.Vector(15, 85, 0)), False)
sketch16.addGeometry(Part.LineSegment(App.Vector(15, 85, 0), App.Vector(15, 90, 0)), False)
sketch16.addConstraint(Sketcher.Constraint("Coincident", 0, 2, 1, 1))
sketch16.addConstraint(Sketcher.Constraint("Coincident", 1, 2, 2, 1))
sketch16.addConstraint(Sketcher.Constraint("Coincident", 2, 2, 3, 1))
sketch16.addConstraint(Sketcher.Constraint("Coincident", 3, 2, 0, 1))
sketch16.addConstraint(Sketcher.Constraint("Horizontal", 0))
sketch16.addConstraint(Sketcher.Constraint("Vertical", 1))
sketch16.addConstraint(Sketcher.Constraint("Horizontal", 2))
sketch16.addConstraint(Sketcher.Constraint("Vertical", 3))
sketch16.addConstraint(Sketcher.Constraint("Equal", 2, 1))
sketch16.addConstraint(Sketcher.Constraint("DistanceX", 0, 2, 0, 1, 5.0))
sketch16.addConstraint(Sketcher.Constraint("DistanceX", -1, 1, 0, 2, 10.0))
sketch16.addConstraint(Sketcher.Constraint("DistanceY", -1, 1, 0, 2, 90.0))
pad13 = doc.addObject("PartDesign::Pad", "Pad012")
body.addObject(pad13)
pad13.Profile = sketch16
pad13.Length = 5

sketch17 = doc.addObject("Sketcher::SketchObject", "Sketch016")
body.addObject(sketch17)
sketch17.AttachmentSupport = (doc.XZ_Plane, [""])
sketch17.MapMode = "FlatFace"
sketch17.AttachmentOffset = App.Placement(App.Vector(0, 0, -10), App.Rotation())
sketch17.addGeometry(Part.Circle(App.Vector(37.5, 87.5, 0), App.Vector(0, 0, 1), 1.5), False)
sketch17.addConstraint(Sketcher.Constraint("Diameter", 0, 3.0))
sketch17.addConstraint(Sketcher.Constraint("DistanceX", -1, 1, 0, 3, 37.5))
sketch17.addConstraint(Sketcher.Constraint("DistanceY", -1, 1, 0, 3, 87.5))
pocket4 = doc.addObject("PartDesign::Pocket", "Pocket003")
body.addObject(pocket4)
pocket4.Profile = sketch17
pocket4.Length = 5

sketch18 = doc.addObject("Sketcher::SketchObject", "Sketch017")
body.addObject(sketch18)
sketch18.AttachmentSupport = (doc.YZ_Plane, [""])
sketch18.MapMode = "FlatFace"
sketch18.AttachmentOffset = App.Placement(App.Vector(0, 0, 30), App.Rotation())
sketch18.addGeometry(Part.Circle(App.Vector(11.5, 93.5, 0), App.Vector(0, 0, 1), 1.05), False)
sketch18.addGeometry(Part.Circle(App.Vector(11.5, 86.5, 0), App.Vector(0, 0, 1), 1.05), False)
sketch18.addConstraint(Sketcher.Constraint("Equal", 0, 1))
sketch18.addConstraint(Sketcher.Constraint("Vertical", 0, 3, 1, 3))
sketch18.addConstraint(Sketcher.Constraint("Diameter", 0, 2.1))
sketch18.addConstraint(Sketcher.Constraint("DistanceY", 1, 3, 0, 3, 7.0))
sketch18.addConstraint(Sketcher.Constraint("DistanceX", -1, 1, 0, 3, 11.5))
sketch18.addConstraint(Sketcher.Constraint("DistanceY", -1, 1, 0, 3, 93.5))
pocket5 = doc.addObject("PartDesign::Pocket", "Pocket004")
body.addObject(pocket5)
pocket5.Profile = sketch18
pocket5.Length = 5
pocket5.Reversed = True

doc.recompute()
